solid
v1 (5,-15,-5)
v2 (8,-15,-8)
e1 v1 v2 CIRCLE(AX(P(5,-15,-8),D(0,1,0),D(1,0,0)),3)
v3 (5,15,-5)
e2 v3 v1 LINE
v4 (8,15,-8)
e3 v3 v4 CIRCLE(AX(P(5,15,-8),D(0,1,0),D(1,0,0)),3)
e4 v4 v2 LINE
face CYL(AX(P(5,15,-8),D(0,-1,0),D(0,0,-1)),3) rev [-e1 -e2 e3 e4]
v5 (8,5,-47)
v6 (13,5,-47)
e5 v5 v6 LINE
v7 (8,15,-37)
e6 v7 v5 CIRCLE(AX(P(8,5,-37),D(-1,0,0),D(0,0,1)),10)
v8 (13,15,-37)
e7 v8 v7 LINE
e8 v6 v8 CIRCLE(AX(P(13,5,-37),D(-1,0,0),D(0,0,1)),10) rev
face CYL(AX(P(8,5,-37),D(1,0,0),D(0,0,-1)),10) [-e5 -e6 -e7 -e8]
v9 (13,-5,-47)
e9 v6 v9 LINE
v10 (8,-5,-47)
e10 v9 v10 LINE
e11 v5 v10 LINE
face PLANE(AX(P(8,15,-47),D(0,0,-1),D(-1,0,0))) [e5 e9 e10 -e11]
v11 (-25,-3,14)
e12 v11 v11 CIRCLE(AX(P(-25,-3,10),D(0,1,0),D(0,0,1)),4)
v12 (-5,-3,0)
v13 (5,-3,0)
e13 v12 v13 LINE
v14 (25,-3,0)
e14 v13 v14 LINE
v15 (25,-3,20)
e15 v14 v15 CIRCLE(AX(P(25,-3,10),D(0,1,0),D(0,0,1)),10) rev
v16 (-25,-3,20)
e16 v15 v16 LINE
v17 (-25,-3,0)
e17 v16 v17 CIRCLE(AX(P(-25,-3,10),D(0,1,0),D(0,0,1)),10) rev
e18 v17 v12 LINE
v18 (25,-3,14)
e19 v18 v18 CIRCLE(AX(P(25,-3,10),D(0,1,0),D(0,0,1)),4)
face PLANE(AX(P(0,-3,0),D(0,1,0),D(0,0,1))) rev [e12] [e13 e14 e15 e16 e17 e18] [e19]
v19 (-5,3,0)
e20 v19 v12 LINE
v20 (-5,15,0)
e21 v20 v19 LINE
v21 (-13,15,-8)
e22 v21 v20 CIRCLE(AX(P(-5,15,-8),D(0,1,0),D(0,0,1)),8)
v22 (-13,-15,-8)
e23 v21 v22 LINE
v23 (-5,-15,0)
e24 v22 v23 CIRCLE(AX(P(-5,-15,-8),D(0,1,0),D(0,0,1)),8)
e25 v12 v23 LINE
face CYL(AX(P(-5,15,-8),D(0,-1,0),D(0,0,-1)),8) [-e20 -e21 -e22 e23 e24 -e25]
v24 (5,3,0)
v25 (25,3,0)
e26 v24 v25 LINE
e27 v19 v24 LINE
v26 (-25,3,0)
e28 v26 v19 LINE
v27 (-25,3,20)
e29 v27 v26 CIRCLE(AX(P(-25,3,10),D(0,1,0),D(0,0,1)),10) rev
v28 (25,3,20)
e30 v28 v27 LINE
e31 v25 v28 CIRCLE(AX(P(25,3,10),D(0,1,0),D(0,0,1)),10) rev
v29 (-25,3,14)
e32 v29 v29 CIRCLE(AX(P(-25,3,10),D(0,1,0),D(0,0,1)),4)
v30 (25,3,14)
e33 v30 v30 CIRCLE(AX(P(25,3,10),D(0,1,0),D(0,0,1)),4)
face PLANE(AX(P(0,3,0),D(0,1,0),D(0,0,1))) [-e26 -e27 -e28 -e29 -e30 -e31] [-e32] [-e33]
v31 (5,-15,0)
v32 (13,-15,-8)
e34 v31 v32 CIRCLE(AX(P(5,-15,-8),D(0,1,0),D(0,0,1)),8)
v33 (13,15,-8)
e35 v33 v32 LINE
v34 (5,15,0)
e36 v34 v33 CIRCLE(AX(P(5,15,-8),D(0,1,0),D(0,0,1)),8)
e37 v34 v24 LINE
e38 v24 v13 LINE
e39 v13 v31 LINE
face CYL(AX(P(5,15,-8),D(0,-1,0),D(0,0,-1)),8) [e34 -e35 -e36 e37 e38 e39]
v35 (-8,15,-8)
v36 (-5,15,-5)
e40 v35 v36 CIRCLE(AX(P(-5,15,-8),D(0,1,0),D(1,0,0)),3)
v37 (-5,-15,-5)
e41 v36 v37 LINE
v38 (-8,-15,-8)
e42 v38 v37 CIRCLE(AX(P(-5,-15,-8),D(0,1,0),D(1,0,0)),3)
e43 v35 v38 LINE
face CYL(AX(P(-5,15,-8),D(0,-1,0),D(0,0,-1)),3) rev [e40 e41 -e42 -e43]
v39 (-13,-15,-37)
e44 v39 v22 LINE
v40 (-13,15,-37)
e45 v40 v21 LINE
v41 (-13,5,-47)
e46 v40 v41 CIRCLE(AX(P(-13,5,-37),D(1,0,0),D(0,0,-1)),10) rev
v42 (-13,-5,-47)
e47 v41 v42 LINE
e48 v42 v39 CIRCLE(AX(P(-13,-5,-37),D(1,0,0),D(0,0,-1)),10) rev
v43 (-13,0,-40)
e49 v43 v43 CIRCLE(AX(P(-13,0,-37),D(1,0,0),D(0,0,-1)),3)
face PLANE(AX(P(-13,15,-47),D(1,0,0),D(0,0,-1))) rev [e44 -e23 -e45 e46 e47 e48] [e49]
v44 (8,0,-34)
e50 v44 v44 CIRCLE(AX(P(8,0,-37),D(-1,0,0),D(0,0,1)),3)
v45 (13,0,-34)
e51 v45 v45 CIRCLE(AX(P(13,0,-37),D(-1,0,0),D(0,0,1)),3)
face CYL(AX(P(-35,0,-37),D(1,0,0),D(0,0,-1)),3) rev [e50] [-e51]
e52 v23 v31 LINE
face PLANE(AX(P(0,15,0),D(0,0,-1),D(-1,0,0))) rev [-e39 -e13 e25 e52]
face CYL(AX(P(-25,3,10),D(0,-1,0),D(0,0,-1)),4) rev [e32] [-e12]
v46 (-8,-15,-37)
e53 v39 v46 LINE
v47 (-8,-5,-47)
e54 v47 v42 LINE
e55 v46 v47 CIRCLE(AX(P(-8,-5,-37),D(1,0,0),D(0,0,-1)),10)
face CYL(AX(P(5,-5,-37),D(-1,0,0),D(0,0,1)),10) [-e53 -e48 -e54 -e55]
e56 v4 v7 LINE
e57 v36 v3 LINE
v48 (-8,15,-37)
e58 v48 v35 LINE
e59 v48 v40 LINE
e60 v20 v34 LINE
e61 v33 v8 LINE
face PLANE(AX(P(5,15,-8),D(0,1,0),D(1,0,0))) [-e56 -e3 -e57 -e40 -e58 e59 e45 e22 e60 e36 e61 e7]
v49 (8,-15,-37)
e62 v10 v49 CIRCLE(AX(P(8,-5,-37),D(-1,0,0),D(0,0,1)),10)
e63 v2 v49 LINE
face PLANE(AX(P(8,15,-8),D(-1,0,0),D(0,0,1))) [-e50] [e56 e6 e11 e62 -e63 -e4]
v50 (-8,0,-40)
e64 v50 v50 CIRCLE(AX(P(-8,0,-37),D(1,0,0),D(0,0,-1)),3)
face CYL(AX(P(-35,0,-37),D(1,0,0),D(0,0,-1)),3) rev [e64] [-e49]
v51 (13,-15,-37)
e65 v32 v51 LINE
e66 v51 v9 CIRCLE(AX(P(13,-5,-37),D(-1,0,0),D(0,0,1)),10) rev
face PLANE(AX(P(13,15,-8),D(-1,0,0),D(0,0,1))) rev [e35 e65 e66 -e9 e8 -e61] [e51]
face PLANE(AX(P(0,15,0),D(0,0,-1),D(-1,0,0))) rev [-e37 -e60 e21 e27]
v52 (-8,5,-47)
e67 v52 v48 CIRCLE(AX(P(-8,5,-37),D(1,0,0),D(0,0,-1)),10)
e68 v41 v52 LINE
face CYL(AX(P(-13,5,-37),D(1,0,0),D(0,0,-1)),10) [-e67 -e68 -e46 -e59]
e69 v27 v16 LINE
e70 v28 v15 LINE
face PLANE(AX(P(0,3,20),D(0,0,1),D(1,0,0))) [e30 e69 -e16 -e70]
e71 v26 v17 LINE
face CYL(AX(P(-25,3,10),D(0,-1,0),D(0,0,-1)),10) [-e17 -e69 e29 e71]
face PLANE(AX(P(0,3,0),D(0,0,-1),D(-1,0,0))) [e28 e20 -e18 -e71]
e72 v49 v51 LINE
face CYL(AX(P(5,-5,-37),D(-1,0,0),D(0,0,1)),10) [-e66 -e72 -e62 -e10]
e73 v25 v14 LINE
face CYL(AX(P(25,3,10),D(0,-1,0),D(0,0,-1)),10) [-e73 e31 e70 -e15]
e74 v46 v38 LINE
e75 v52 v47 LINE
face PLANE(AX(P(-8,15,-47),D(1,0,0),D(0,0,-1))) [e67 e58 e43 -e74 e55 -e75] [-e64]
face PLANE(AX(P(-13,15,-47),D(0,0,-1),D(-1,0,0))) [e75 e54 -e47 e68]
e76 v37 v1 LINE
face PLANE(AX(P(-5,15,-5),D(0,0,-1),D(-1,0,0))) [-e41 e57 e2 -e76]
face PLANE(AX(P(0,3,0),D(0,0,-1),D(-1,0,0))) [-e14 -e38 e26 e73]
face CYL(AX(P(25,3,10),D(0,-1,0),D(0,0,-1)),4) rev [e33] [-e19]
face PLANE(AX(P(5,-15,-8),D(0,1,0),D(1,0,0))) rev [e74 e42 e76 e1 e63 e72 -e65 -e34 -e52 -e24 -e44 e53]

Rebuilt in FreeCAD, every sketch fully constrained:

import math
import FreeCAD as App
import Part
import Sketcher
Q = App.Units.Quantity


def edges_at(feature, points):
    """Names of the edges that pass closest to the given points."""
    edges = feature.Shape.Edges
    near = lambda p: min(range(len(edges)), key=lambda i: edges[i].distToShape(Part.Vertex(*p))[0])
    return sorted({f"Edge{near(p) + 1}" for p in points})

doc = App.newDocument("Part")
body = doc.addObject("PartDesign::Body", "Body")

# Sketch on XZ plane
sketch1 = body.newObject("Sketcher::SketchObject", "Sketch")
sketch1.AttachmentSupport = (doc.getObject("XZ_Plane"), [""])
sketch1.MapMode = "FlatFace"
sketch1.addGeometry(Part.LineSegment(App.Vector(-13, -47, 0), App.Vector(-13, -8, 0)), False)
sketch1.addGeometry(Part.ArcOfCircle(Part.Circle(App.Vector(-5, -8, 0), App.Vector(0, 0, 1), 8), math.radians(90), math.radians(180)), False)
sketch1.addGeometry(Part.LineSegment(App.Vector(-5, 0, 0), App.Vector(5, 0, 0)), False)
sketch1.addGeometry(Part.ArcOfCircle(Part.Circle(App.Vector(5, -8, 0), App.Vector(0, 0, 1), 8), math.radians(0), math.radians(90)), False)
sketch1.addGeometry(Part.LineSegment(App.Vector(13, -8, 0), App.Vector(13, -47, 0)), False)
sketch1.addGeometry(Part.LineSegment(App.Vector(13, -47, 0), App.Vector(8, -47, 0)), False)
sketch1.addGeometry(Part.LineSegment(App.Vector(8, -47, 0), App.Vector(8, -8, 0)), False)
sketch1.addGeometry(Part.ArcOfCircle(Part.Circle(App.Vector(5, -8, 0), App.Vector(0, 0, 1), 3), math.radians(0), math.radians(90)), False)
sketch1.addGeometry(Part.LineSegment(App.Vector(5, -5, 0), App.Vector(-5, -5, 0)), False)
sketch1.addGeometry(Part.ArcOfCircle(Part.Circle(App.Vector(-5, -8, 0), App.Vector(0, 0, 1), 3), math.radians(90), math.radians(180)), False)
sketch1.addGeometry(Part.LineSegment(App.Vector(-8, -8, 0), App.Vector(-8, -47, 0)), False)
sketch1.addGeometry(Part.LineSegment(App.Vector(-8, -47, 0), App.Vector(-13, -47, 0)), False)
sketch1.addConstraint(Sketcher.Constraint("Tangent", 0, 2, 1, 2))
sketch1.addConstraint(Sketcher.Constraint("Tangent", 1, 1, 2, 1))
sketch1.addConstraint(Sketcher.Constraint("Tangent", 2, 2, 3, 2))
sketch1.addConstraint(Sketcher.Constraint("Tangent", 3, 1, 4, 1))
sketch1.addConstraint(Sketcher.Constraint("Coincident", 4, 2, 5, 1))
sketch1.addConstraint(Sketcher.Constraint("Coincident", 5, 2, 6, 1))
sketch1.addConstraint(Sketcher.Constraint("Tangent", 6, 2, 7, 1))
sketch1.addConstraint(Sketcher.Constraint("Tangent", 7, 2, 8, 1))
sketch1.addConstraint(Sketcher.Constraint("Tangent", 8, 2, 9, 1))
sketch1.addConstraint(Sketcher.Constraint("Tangent", 9, 2, 10, 1))
sketch1.addConstraint(Sketcher.Constraint("Coincident", 10, 2, 11, 1))
sketch1.addConstraint(Sketcher.Constraint("Coincident", 11, 2, 0, 1))
sketch1.addConstraint(Sketcher.Constraint("Vertical", 0))
sketch1.addConstraint(Sketcher.Constraint("Horizontal", 2))
sketch1.addConstraint(Sketcher.Constraint("Vertical", 4))
sketch1.addConstraint(Sketcher.Constraint("Horizontal", 5))
sketch1.addConstraint(Sketcher.Constraint("Vertical", 6))
sketch1.addConstraint(Sketcher.Constraint("Horizontal", 8))
sketch1.addConstraint(Sketcher.Constraint("Vertical", 10))
sketch1.addConstraint(Sketcher.Constraint("Horizontal", 11))
sketch1.addConstraint(Sketcher.Constraint("Coincident", 7, 3, 3, 3))
sketch1.addConstraint(Sketcher.Constraint("Coincident", 9, 3, 1, 3))
sketch1.addConstraint(Sketcher.Constraint("Equal", 1, 3))
sketch1.addConstraint(Sketcher.Constraint("Symmetric", 1, 1, 2, 2, -1, 1))
sketch1.addConstraint(Sketcher.Constraint("Horizontal", 5, 2, 10, 2))
sketch1.addConstraint(Sketcher.Constraint("Radius", 1, Q("8 mm")))
sketch1.addConstraint(Sketcher.Constraint("Radius", 7, Q("3 mm")))
sketch1.addConstraint(Sketcher.Constraint("DistanceX", 2, 1, 2, 2, Q("10 mm")))
sketch1.addConstraint(Sketcher.Constraint("DistanceY", 0, 1, 0, 2, Q("39 mm")))
pad1 = body.newObject("PartDesign::Pad", "Pad")
pad1.Profile = sketch1
pad1.Length = 30
pad1.Midplane = True
doc.recompute()

fillet = body.newObject("PartDesign::Fillet", "Fillet")
fillet.Base = (pad1, edges_at(pad1, [
    (-10.5, -15, -47),
    (10.5, -15, -47),
    (-10.5, 15, -47),
    (10.5, 15, -47),
]))
fillet.Radius = 10

# Sketch on XZ plane
sketch2 = body.newObject("Sketcher::SketchObject", "Sketch001")
sketch2.AttachmentSupport = (doc.getObject("XZ_Plane"), [""])
sketch2.MapMode = "FlatFace"
sketch2.addGeometry(Part.ArcOfCircle(Part.Circle(App.Vector(-25, 10, 0), App.Vector(0, 0, 1), 10), math.radians(90), math.radians(270)), False)
sketch2.addGeometry(Part.LineSegment(App.Vector(-25, 20, 0), App.Vector(25, 20, 0)), False)
sketch2.addGeometry(Part.ArcOfCircle(Part.Circle(App.Vector(25, 10, 0), App.Vector(0, 0, 1), 10), math.radians(-90), math.radians(90)), False)
sketch2.addGeometry(Part.LineSegment(App.Vector(25, 0, 0), App.Vector(-25, 0, 0)), False)
sketch2.addGeometry(Part.Circle(App.Vector(-25, 10, 0), App.Vector(0, 0, 1), 4), False)
sketch2.addGeometry(Part.Circle(App.Vector(25, 10, 0), App.Vector(0, 0, 1), 4), False)
sketch2.addConstraint(Sketcher.Constraint("Tangent", 0, 1, 1, 1))
sketch2.addConstraint(Sketcher.Constraint("Tangent", 1, 2, 2, 2))
sketch2.addConstraint(Sketcher.Constraint("Tangent", 2, 1, 3, 1))
sketch2.addConstraint(Sketcher.Constraint("Tangent", 3, 2, 0, 2))
sketch2.addConstraint(Sketcher.Constraint("Horizontal", 1))
sketch2.addConstraint(Sketcher.Constraint("Horizontal", 3))
sketch2.addConstraint(Sketcher.Constraint("Coincident", 4, 3, 0, 3))
sketch2.addConstraint(Sketcher.Constraint("Coincident", 5, 3, 2, 3))
sketch2.addConstraint(Sketcher.Constraint("Equal", 4, 5))
sketch2.addConstraint(Sketcher.Constraint("Symmetric", 2, 1, 3, 2, -1, 1))
sketch2.addConstraint(Sketcher.Constraint("Diameter", 4, Q("8 mm")))
sketch2.addConstraint(Sketcher.Constraint("Radius", 0, Q("10 mm")))
sketch2.addConstraint(Sketcher.Constraint("DistanceX", 1, 1, 1, 2, Q("50 mm")))
pad2 = body.newObject("PartDesign::Pad", "Pad001")
pad2.Profile = sketch2
pad2.Length = 6
pad2.Midplane = True

# Sketch on YZ plane
sketch3 = body.newObject("Sketcher::SketchObject", "Sketch002")
sketch3.AttachmentSupport = (doc.getObject("YZ_Plane"), [""])
sketch3.MapMode = "FlatFace"
sketch3.AttachmentOffset = App.Placement(App.Vector(0, 0, 13), App.Rotation())
sketch3.addGeometry(Part.Circle(App.Vector(0, -37, 0), App.Vector(0, 0, 1), 3), False)
sketch3.addConstraint(Sketcher.Constraint("PointOnObject", 0, 3, -2))
sketch3.addConstraint(Sketcher.Constraint("Diameter", 0, Q("6 mm")))
sketch3.addConstraint(Sketcher.Constraint("DistanceY", 0, 3, -1, 1, Q("37 mm")))
pocket1 = body.newObject("PartDesign::Pocket", "Pocket")
pocket1.Profile = sketch3
pocket1.Type = "ThroughAll"
pocket1.Midplane = True

doc.recompute()
